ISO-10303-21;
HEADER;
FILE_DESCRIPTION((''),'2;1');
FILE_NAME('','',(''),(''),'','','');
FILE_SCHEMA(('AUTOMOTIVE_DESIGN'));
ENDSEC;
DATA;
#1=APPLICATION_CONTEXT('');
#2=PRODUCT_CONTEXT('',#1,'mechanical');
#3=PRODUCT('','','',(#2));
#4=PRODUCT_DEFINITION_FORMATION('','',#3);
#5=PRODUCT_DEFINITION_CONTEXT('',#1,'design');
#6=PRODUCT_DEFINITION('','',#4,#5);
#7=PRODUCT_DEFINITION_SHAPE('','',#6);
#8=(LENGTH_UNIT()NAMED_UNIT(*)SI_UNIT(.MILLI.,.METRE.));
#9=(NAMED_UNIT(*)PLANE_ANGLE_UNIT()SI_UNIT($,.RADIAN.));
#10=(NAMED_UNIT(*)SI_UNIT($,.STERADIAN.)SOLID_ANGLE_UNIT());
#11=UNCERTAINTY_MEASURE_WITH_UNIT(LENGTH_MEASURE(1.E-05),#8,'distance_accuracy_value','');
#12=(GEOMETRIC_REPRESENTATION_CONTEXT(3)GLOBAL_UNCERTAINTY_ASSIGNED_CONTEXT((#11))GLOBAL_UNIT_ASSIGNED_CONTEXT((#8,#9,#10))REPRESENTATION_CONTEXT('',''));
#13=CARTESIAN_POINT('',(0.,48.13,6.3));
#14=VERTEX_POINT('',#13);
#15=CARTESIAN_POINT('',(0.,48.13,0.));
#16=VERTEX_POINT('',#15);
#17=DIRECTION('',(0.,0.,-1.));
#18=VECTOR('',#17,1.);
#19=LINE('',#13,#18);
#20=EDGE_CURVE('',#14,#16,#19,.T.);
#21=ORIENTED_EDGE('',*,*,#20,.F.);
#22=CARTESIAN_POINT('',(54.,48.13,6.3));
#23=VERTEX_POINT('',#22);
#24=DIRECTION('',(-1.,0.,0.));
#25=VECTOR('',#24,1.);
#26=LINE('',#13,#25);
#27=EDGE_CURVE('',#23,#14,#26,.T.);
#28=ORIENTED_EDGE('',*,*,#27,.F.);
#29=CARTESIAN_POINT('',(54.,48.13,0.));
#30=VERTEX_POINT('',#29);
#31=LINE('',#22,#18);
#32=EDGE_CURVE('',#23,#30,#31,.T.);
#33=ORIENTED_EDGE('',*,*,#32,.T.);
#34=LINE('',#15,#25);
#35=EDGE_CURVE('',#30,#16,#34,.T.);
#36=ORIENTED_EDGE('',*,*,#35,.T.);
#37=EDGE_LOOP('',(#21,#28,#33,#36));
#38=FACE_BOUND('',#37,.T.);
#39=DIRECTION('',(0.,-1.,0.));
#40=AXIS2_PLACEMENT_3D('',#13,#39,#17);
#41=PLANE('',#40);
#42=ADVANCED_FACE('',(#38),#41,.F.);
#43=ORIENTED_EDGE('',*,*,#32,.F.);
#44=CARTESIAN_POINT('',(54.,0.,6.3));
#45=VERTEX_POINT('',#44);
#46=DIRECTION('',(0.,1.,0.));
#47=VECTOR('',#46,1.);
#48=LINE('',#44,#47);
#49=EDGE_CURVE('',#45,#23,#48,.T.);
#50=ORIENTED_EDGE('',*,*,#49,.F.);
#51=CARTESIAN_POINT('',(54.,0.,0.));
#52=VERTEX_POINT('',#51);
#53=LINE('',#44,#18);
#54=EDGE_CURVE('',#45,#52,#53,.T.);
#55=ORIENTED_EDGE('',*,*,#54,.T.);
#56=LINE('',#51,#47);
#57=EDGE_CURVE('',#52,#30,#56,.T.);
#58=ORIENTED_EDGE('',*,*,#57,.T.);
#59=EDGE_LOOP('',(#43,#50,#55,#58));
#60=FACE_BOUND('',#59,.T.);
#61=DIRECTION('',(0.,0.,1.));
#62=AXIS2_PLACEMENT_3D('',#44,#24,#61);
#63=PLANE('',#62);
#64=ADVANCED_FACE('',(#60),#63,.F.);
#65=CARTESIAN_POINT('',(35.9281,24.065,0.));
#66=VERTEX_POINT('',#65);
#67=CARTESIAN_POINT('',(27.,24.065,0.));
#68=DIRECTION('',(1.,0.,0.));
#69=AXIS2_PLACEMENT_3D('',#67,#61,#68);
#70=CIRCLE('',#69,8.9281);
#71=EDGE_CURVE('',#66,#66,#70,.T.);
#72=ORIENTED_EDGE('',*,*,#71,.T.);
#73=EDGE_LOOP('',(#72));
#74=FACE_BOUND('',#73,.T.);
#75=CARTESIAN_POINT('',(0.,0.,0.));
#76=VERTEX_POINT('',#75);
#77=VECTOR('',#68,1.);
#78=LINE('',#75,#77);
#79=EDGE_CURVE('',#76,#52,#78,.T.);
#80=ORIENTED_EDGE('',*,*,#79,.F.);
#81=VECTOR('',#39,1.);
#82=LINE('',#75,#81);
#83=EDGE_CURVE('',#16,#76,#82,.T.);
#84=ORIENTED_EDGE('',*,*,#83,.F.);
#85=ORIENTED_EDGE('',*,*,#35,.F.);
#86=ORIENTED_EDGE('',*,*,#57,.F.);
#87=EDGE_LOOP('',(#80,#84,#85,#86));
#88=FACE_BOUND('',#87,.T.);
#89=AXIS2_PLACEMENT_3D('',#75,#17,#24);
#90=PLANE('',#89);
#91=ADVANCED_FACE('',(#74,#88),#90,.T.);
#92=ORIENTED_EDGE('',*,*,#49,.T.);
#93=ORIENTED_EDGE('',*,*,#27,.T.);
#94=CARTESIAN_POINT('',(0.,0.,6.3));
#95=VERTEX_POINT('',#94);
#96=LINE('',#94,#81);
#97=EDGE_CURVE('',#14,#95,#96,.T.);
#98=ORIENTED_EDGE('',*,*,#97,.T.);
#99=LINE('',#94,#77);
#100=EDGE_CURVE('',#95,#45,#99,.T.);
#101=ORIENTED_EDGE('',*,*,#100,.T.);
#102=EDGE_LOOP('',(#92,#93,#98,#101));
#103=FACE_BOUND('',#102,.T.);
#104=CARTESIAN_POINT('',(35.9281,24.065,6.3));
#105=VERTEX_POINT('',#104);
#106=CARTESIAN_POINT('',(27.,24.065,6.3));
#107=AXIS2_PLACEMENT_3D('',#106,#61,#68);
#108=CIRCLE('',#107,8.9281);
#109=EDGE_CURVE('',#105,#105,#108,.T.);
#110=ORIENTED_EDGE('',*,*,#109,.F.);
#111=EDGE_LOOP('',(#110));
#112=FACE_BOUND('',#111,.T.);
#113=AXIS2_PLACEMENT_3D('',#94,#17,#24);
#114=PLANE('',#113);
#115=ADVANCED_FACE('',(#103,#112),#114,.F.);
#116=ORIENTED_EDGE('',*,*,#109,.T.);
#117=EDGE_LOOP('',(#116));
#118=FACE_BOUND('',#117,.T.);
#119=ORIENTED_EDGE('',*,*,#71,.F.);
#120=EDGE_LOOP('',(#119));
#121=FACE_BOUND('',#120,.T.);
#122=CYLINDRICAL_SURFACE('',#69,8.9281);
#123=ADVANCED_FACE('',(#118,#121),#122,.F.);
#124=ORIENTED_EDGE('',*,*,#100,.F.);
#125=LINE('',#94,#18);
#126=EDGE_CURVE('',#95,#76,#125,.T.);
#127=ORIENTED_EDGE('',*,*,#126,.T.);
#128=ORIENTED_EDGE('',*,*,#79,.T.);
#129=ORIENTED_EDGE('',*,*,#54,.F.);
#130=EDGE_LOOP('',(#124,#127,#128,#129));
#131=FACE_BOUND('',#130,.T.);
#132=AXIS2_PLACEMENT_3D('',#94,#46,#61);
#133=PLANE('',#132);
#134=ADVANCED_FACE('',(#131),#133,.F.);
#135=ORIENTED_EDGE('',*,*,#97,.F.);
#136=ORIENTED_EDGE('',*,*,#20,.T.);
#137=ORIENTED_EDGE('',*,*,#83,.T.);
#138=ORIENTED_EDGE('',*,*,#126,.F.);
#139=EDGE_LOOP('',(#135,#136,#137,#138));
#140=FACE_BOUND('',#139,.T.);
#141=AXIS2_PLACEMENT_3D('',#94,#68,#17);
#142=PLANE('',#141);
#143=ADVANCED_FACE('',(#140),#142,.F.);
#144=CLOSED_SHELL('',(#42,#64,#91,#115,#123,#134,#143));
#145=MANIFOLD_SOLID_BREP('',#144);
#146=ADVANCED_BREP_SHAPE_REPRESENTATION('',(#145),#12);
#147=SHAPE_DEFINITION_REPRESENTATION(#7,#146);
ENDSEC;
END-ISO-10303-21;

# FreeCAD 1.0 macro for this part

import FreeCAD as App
import Part
import Sketcher
from FreeCAD import Vector

doc = App.newDocument("Part")
body = doc.addObject("PartDesign::Body", "Body")

sketch1 = body.newObject("Sketcher::SketchObject", "Sketch")
sketch1.AttachmentSupport = (doc.getObject("XY_Plane"), [""])
sketch1.MapMode = "FlatFace"
sketch1.addGeometry([
    Part.LineSegment(Vector(0, 48, 0), Vector(0, 0, 0)),
    Part.LineSegment(Vector(0, 0, 0), Vector(54, 0, 0)),
    Part.LineSegment(Vector(54, 0, 0), Vector(54, 48, 0)),
    Part.LineSegment(Vector(54, 48, 0), Vector(0, 48, 0)),
], False)
sketch1.addConstraint([
    Sketcher.Constraint("Coincident", 0, 2, 1, 1),
    Sketcher.Constraint("Coincident", 1, 2, 2, 1),
    Sketcher.Constraint("Coincident", 2, 2, 3, 1),
    Sketcher.Constraint("Coincident", 3, 2, 0, 1),
    Sketcher.Constraint("Vertical", 0),
    Sketcher.Constraint("Horizontal", 1),
    Sketcher.Constraint("Vertical", 2),
    Sketcher.Constraint("Horizontal", 3),
    Sketcher.Constraint("Coincident", 0, 2, -1, 1),
    Sketcher.Constraint("DistanceX", 1, 1, 1, 2, 54.0),
    Sketcher.Constraint("DistanceY", 0, 2, 0, 1, 48.13),
])
pad1 = body.newObject("PartDesign::Pad", "Pad")
pad1.Profile = sketch1
pad1.Length = 6.3

sketch2 = body.newObject("Sketcher::SketchObject", "Sketch001")
sketch2.AttachmentSupport = (doc.getObject("XY_Plane"), [""])
sketch2.MapMode = "FlatFace"
sketch2.AttachmentOffset = App.Placement(Vector(0, 0, 6.3), App.Rotation())
sketch2.addGeometry(Part.Circle(Vector(27, 24, 0), Vector(0, 0, 1), 9), False)
sketch2.addConstraint([
    Sketcher.Constraint("DistanceX", -1, 1, 0, 3, 27.0),
    Sketcher.Constraint("Diameter", 0, 17.8562),
    Sketcher.Constraint("DistanceY", -1, 1, 0, 3, 24.065),
])
pocket1 = body.newObject("PartDesign::Pocket", "Pocket")
pocket1.Profile = sketch2
pocket1.Type = "ThroughAll"

doc.recompute()
